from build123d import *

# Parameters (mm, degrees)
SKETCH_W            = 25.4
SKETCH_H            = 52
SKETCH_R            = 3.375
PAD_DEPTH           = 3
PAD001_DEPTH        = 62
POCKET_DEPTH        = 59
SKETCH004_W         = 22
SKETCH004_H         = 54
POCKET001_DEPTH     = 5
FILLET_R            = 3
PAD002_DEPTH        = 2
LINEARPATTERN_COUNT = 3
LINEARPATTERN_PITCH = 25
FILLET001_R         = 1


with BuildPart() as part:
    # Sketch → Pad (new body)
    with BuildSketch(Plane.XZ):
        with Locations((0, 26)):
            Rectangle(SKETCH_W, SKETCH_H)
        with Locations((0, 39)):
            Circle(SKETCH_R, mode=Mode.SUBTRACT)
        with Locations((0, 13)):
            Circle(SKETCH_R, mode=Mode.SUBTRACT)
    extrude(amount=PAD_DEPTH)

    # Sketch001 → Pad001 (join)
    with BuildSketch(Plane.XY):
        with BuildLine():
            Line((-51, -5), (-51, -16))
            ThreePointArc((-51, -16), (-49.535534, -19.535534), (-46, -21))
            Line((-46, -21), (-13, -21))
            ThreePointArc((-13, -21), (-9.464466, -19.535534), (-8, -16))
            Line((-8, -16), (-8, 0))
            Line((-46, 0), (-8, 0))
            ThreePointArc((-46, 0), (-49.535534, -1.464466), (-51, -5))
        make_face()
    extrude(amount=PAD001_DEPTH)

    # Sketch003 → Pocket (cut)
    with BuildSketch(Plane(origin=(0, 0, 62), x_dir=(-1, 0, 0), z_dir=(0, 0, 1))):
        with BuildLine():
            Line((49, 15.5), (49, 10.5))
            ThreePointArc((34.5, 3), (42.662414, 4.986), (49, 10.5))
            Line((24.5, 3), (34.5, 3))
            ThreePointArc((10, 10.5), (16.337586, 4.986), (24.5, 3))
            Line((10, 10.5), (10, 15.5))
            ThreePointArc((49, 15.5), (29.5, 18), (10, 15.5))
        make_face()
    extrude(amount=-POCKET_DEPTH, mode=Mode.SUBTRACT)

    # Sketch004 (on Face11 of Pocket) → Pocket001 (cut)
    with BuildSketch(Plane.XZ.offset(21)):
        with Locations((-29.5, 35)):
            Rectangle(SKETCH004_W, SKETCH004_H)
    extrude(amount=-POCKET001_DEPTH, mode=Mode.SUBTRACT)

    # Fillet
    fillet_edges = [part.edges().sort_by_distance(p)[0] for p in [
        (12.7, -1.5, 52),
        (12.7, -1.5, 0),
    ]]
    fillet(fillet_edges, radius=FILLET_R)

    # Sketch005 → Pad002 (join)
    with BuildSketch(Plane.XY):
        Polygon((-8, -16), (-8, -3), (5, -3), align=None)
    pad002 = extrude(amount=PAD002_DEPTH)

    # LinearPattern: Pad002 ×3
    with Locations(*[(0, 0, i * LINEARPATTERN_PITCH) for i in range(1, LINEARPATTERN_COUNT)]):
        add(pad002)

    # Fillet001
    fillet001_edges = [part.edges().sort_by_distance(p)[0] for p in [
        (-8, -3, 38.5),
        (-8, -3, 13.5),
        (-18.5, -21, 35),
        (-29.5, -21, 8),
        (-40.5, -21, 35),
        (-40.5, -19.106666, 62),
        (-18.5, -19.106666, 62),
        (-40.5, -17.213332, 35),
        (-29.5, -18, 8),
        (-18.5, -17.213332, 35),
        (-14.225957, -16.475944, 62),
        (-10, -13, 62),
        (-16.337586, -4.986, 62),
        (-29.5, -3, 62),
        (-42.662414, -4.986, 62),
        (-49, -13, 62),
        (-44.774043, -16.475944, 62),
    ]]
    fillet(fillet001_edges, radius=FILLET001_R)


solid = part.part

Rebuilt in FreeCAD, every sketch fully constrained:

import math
import FreeCAD as App
import Part
import Sketcher

V = App.Vector


def edges_at(feature, points):
    """Names of the edges that pass closest to the given points."""
    edges = feature.Shape.Edges
    near = lambda p: min(range(len(edges)), key=lambda i: edges[i].distToShape(Part.Vertex(*p))[0])
    return sorted({f"Edge{near(p) + 1}" for p in points})

doc = App.newDocument("Part")
body = doc.addObject("PartDesign::Body", "Body")

sketch1 = doc.addObject("Sketcher::SketchObject", "Sketch")
body.addObject(sketch1)
sketch1.AttachmentSupport = (doc.XZ_Plane, [""])
sketch1.MapMode = "FlatFace"
sketch1.addGeometry(Part.LineSegment(V(-12.7, 52, 0), V(-12.7, 0, 0)), False)
sketch1.addGeometry(Part.LineSegment(V(-12.7, 0, 0), V(12.7, 0, 0)), False)
sketch1.addGeometry(Part.LineSegment(V(12.7, 0, 0), V(12.7, 52, 0)), False)
sketch1.addGeometry(Part.LineSegment(V(12.7, 52, 0), V(-12.7, 52, 0)), False)
sketch1.addGeometry(Part.Circle(V(0, 13, 0), V(0, 0, 1), 3.4), False)
sketch1.addGeometry(Part.Circle(V(0, 39, 0), V(0, 0, 1), 3.4), False)
sketch1.addConstraint(Sketcher.Constraint("Coincident", 0, 2, 1, 1))
sketch1.addConstraint(Sketcher.Constraint("Coincident", 1, 2, 2, 1))
sketch1.addConstraint(Sketcher.Constraint("Coincident", 2, 2, 3, 1))
sketch1.addConstraint(Sketcher.Constraint("Coincident", 3, 2, 0, 1))
sketch1.addConstraint(Sketcher.Constraint("Vertical", 0))
sketch1.addConstraint(Sketcher.Constraint("Horizontal", 1))
sketch1.addConstraint(Sketcher.Constraint("Vertical", 2))
sketch1.addConstraint(Sketcher.Constraint("Horizontal", 3))
sketch1.addConstraint(Sketcher.Constraint("Equal", 4, 5))
sketch1.addConstraint(Sketcher.Constraint("Symmetric", 0, 2, 1, 2, -1, 1))
sketch1.addConstraint(Sketcher.Constraint("PointOnObject", 4, 3, -2))
sketch1.addConstraint(Sketcher.Constraint("PointOnObject", 5, 3, -2))
sketch1.addConstraint(Sketcher.Constraint("Diameter", 4, 6.75))
sketch1.addConstraint(Sketcher.Constraint("DistanceY", 0, 2, 0, 1, 52.0))
sketch1.addConstraint(Sketcher.Constraint("DistanceX", 1, 1, 1, 2, 25.4))
sketch1.addConstraint(Sketcher.Constraint("DistanceY", -1, 1, 4, 3, 13.0))
sketch1.addConstraint(Sketcher.Constraint("DistanceY", -1, 1, 5, 3, 39.0))
pad1 = doc.addObject("PartDesign::Pad", "Pad")
body.addObject(pad1)
pad1.Profile = sketch1
pad1.Length = 3

sketch2 = doc.addObject("Sketcher::SketchObject", "Sketch001")
body.addObject(sketch2)
sketch2.AttachmentSupport = (doc.XY_Plane, [""])
sketch2.MapMode = "FlatFace"
sketch2.addGeometry(Part.LineSegment(V(-51, -5, 0), V(-51, -16, 0)), False)
sketch2.addGeometry(Part.ArcOfCircle(Part.Circle(V(-46, -16, 0), V(0, 0, 1), 5), math.radians(180), math.radians(270)), False)
sketch2.addGeometry(Part.LineSegment(V(-46, -21, 0), V(-13, -21, 0)), False)
sketch2.addGeometry(Part.ArcOfCircle(Part.Circle(V(-13, -16, 0), V(0, 0, 1), 5), math.radians(-90), math.radians(0)), False)
sketch2.addGeometry(Part.LineSegment(V(-8, -16, 0), V(-8, 0, 0)), False)
sketch2.addGeometry(Part.LineSegment(V(-8, 0, 0), V(-46, 0, 0)), False)
sketch2.addGeometry(Part.ArcOfCircle(Part.Circle(V(-46, -5, 0), V(0, 0, 1), 5), math.radians(90), math.radians(180)), False)
sketch2.addConstraint(Sketcher.Constraint("Tangent", 0, 2, 1, 1))
sketch2.addConstraint(Sketcher.Constraint("Tangent", 1, 2, 2, 1))
sketch2.addConstraint(Sketcher.Constraint("Tangent", 2, 2, 3, 1))
sketch2.addConstraint(Sketcher.Constraint("Tangent", 3, 2, 4, 1))
sketch2.addConstraint(Sketcher.Constraint("Coincident", 4, 2, 5, 1))
sketch2.addConstraint(Sketcher.Constraint("Tangent", 5, 2, 6, 1))
sketch2.addConstraint(Sketcher.Constraint("Tangent", 6, 2, 0, 1))
sketch2.addConstraint(Sketcher.Constraint("Vertical", 0))
sketch2.addConstraint(Sketcher.Constraint("Horizontal", 2))
sketch2.addConstraint(Sketcher.Constraint("Vertical", 4))
sketch2.addConstraint(Sketcher.Constraint("Horizontal", 5))
sketch2.addConstraint(Sketcher.Constraint("Equal", 1, 3))
sketch2.addConstraint(Sketcher.Constraint("Equal", 3, 6))
sketch2.addConstraint(Sketcher.Constraint("PointOnObject", 4, 2, -1))
sketch2.addConstraint(Sketcher.Constraint("Radius", 1, 5.0))
sketch2.addConstraint(Sketcher.Constraint("DistanceX", 2, 1, 2, 2, 33.0))
sketch2.addConstraint(Sketcher.Constraint("DistanceY", 0, 2, 0, 1, 11.0))
sketch2.addConstraint(Sketcher.Constraint("DistanceX", 1, 3, -1, 1, 46.0))
pad2 = doc.addObject("PartDesign::Pad", "Pad001")
body.addObject(pad2)
pad2.Profile = sketch2
pad2.Length = 62

sketch3 = doc.addObject("Sketcher::SketchObject", "Sketch002")
body.addObject(sketch3)
sketch3.AttachmentSupport = (doc.XY_Plane, [""])
sketch3.MapMode = "FlatFace"
sketch3.AttachmentOffset = App.Placement(V(0, 0, 62), App.Rotation())
sketch3.addGeometry(Part.LineSegment(V(-49, -10, 0), V(-49, -16, 0)), False)
sketch3.addGeometry(Part.ArcOfCircle(Part.Circle(V(-30, 59, 0), V(0, 0, 1), 77), math.radians(-105), math.radians(-75)), False)
sketch3.addGeometry(Part.LineSegment(V(-10, -16, 0), V(-10, -10, 0)), False)
sketch3.addGeometry(Part.ArcOfCircle(Part.Circle(V(-25, -21, 0), V(0, 0, 1), 18), math.radians(35), math.radians(90)), False)
sketch3.addGeometry(Part.LineSegment(V(-24, -3, 0), V(-34, -3, 0)), False)
sketch3.addGeometry(Part.ArcOfCircle(Part.Circle(V(-34, -21, 0), V(0, 0, 1), 18), math.radians(90), math.radians(145)), False)
sketch3.addConstraint(Sketcher.Constraint("Coincident", 0, 2, 1, 1))
sketch3.addConstraint(Sketcher.Constraint("Coincident", 1, 2, 2, 1))
sketch3.addConstraint(Sketcher.Constraint("Coincident", 2, 2, 3, 1))
sketch3.addConstraint(Sketcher.Constraint("Tangent", 3, 2, 4, 1))
sketch3.addConstraint(Sketcher.Constraint("Tangent", 4, 2, 5, 1))
sketch3.addConstraint(Sketcher.Constraint("Coincident", 5, 2, 0, 1))
sketch3.addConstraint(Sketcher.Constraint("Vertical", 0))
sketch3.addConstraint(Sketcher.Constraint("Vertical", 2))
sketch3.addConstraint(Sketcher.Constraint("Horizontal", 4))
sketch3.addConstraint(Sketcher.Constraint("Equal", 3, 5))
sketch3.addConstraint(Sketcher.Constraint("Horizontal", 0, 2, 1, 2))
sketch3.addConstraint(Sketcher.Constraint("Horizontal", 2, 2, 5, 2))
sketch3.addConstraint(Sketcher.Constraint("Radius", 1, 77.3))
sketch3.addConstraint(Sketcher.Constraint("DistanceX", 4, 2, 4, 1, 10.0))
sketch3.addConstraint(Sketcher.Constraint("DistanceY", 0, 2, 0, 1, 5.0))
sketch3.addConstraint(Sketcher.Constraint("DistanceX", 0, 2, -1, 1, 49.0))
sketch3.addConstraint(Sketcher.Constraint("DistanceX", 1, 2, -1, 1, 10.0))
sketch3.addConstraint(Sketcher.Constraint("DistanceY", 3, 2, -1, 1, 3.0))
sketch3.addConstraint(Sketcher.Constraint("DistanceY", -1, 1, 1, 3, 59.3))
pocket1 = doc.addObject("PartDesign::Pocket", "Pocket")
body.addObject(pocket1)
pocket1.Profile = sketch3
pocket1.Length = 59

sketch4 = doc.addObject("Sketcher::SketchObject", "Sketch003")
body.addObject(sketch4)
sketch4.AttachmentSupport = (doc.XZ_Plane, [""])
sketch4.MapMode = "FlatFace"
sketch4.AttachmentOffset = App.Placement(V(0, 0, 21), App.Rotation())
sketch4.addGeometry(Part.LineSegment(V(-40, 62, 0), V(-40, 8, 0)), False)
sketch4.addGeometry(Part.LineSegment(V(-40, 8, 0), V(-18, 8, 0)), False)
sketch4.addGeometry(Part.LineSegment(V(-18, 8, 0), V(-18, 62, 0)), False)
sketch4.addGeometry(Part.LineSegment(V(-18, 62, 0), V(-40, 62, 0)), False)
sketch4.addConstraint(Sketcher.Constraint("Coincident", 0, 2, 1, 1))
sketch4.addConstraint(Sketcher.Constraint("Coincident", 1, 2, 2, 1))
sketch4.addConstraint(Sketcher.Constraint("Coincident", 2, 2, 3, 1))
sketch4.addConstraint(Sketcher.Constraint("Coincident", 3, 2, 0, 1))
sketch4.addConstraint(Sketcher.Constraint("Vertical", 0))
sketch4.addConstraint(Sketcher.Constraint("Horizontal", 1))
sketch4.addConstraint(Sketcher.Constraint("Vertical", 2))
sketch4.addConstraint(Sketcher.Constraint("Horizontal", 3))
sketch4.addConstraint(Sketcher.Constraint("DistanceX", 1, 1, 1, 2, 22.0))
sketch4.addConstraint(Sketcher.Constraint("DistanceY", 0, 2, 0, 1, 54.0))
sketch4.addConstraint(Sketcher.Constraint("DistanceY", -1, 1, 0, 2, 8.0))
sketch4.addConstraint(Sketcher.Constraint("DistanceX", 0, 2, -1, 1, 40.5))
pocket2 = doc.addObject("PartDesign::Pocket", "Pocket001")
body.addObject(pocket2)
pocket2.Profile = sketch4
pocket2.Length = 5
doc.recompute()

fillet = doc.addObject("PartDesign::Fillet", "Fillet")
body.addObject(fillet)
fillet.Base = (pocket2, edges_at(pocket2, [(12.7, -1.5, 52), (12.7, -1.5, 0)]))
fillet.Radius = 3

sketch5 = doc.addObject("Sketcher::SketchObject", "Sketch004")
body.addObject(sketch5)
sketch5.AttachmentSupport = (doc.XY_Plane, [""])
sketch5.MapMode = "FlatFace"
sketch5.addGeometry(Part.LineSegment(V(-8, -3, 0), V(-8, -16, 0)), False)
sketch5.addGeometry(Part.LineSegment(V(-8, -16, 0), V(5, -3, 0)), False)
sketch5.addGeometry(Part.LineSegment(V(5, -3, 0), V(-8, -3, 0)), False)
sketch5.addConstraint(Sketcher.Constraint("Coincident", 0, 2, 1, 1))
sketch5.addConstraint(Sketcher.Constraint("Coincident", 1, 2, 2, 1))
sketch5.addConstraint(Sketcher.Constraint("Coincident", 2, 2, 0, 1))
sketch5.addConstraint(Sketcher.Constraint("Vertical", 0))
sketch5.addConstraint(Sketcher.Constraint("Horizontal", 2))
sketch5.addConstraint(Sketcher.Constraint("Equal", 2, 0))
sketch5.addConstraint(Sketcher.Constraint("DistanceX", 2, 2, 2, 1, 13.0))
sketch5.addConstraint(Sketcher.Constraint("DistanceX", 0, 2, -1, 1, 8.0))
sketch5.addConstraint(Sketcher.Constraint("DistanceY", 0, 2, -1, 1, 16.0))
pad3 = doc.addObject("PartDesign::Pad", "Pad002")
body.addObject(pad3)
pad3.Profile = sketch5
pad3.Length = 2
doc.recompute()

linearpattern = doc.addObject("PartDesign::LinearPattern", "LinearPattern")
body.addObject(linearpattern)
linearpattern.Originals = [pad3]
linearpattern.Direction = (doc.Z_Axis, [""])
linearpattern.Mode = "offset"
linearpattern.Offset = 25
linearpattern.Occurrences = 3
body.Tip = linearpattern
doc.recompute()

fillet2 = doc.addObject("PartDesign::Fillet", "Fillet001")
body.addObject(fillet2)
fillet2.Base = (linearpattern, edges_at(linearpattern, [
    (-8, -3, 38.5),
    (-8, -3, 13.5),
    (-18.5, -21, 35),
    (-29.5, -21, 8),
    (-40.5, -21, 35),
    (-40.5, -19.107, 62),
    (-18.5, -19.107, 62),
    (-40.5, -17.213, 35),
    (-29.5, -18, 8),
    (-18.5, -17.213, 35),
    (-14.226, -16.476, 62),
    (-10, -13, 62),
    (-16.338, -4.986, 62),
    (-29.5, -3, 62),
    (-42.662, -4.986, 62),
    (-49, -13, 62),
    (-44.774, -16.476, 62),
]))
fillet2.Radius = 1

doc.recompute()
